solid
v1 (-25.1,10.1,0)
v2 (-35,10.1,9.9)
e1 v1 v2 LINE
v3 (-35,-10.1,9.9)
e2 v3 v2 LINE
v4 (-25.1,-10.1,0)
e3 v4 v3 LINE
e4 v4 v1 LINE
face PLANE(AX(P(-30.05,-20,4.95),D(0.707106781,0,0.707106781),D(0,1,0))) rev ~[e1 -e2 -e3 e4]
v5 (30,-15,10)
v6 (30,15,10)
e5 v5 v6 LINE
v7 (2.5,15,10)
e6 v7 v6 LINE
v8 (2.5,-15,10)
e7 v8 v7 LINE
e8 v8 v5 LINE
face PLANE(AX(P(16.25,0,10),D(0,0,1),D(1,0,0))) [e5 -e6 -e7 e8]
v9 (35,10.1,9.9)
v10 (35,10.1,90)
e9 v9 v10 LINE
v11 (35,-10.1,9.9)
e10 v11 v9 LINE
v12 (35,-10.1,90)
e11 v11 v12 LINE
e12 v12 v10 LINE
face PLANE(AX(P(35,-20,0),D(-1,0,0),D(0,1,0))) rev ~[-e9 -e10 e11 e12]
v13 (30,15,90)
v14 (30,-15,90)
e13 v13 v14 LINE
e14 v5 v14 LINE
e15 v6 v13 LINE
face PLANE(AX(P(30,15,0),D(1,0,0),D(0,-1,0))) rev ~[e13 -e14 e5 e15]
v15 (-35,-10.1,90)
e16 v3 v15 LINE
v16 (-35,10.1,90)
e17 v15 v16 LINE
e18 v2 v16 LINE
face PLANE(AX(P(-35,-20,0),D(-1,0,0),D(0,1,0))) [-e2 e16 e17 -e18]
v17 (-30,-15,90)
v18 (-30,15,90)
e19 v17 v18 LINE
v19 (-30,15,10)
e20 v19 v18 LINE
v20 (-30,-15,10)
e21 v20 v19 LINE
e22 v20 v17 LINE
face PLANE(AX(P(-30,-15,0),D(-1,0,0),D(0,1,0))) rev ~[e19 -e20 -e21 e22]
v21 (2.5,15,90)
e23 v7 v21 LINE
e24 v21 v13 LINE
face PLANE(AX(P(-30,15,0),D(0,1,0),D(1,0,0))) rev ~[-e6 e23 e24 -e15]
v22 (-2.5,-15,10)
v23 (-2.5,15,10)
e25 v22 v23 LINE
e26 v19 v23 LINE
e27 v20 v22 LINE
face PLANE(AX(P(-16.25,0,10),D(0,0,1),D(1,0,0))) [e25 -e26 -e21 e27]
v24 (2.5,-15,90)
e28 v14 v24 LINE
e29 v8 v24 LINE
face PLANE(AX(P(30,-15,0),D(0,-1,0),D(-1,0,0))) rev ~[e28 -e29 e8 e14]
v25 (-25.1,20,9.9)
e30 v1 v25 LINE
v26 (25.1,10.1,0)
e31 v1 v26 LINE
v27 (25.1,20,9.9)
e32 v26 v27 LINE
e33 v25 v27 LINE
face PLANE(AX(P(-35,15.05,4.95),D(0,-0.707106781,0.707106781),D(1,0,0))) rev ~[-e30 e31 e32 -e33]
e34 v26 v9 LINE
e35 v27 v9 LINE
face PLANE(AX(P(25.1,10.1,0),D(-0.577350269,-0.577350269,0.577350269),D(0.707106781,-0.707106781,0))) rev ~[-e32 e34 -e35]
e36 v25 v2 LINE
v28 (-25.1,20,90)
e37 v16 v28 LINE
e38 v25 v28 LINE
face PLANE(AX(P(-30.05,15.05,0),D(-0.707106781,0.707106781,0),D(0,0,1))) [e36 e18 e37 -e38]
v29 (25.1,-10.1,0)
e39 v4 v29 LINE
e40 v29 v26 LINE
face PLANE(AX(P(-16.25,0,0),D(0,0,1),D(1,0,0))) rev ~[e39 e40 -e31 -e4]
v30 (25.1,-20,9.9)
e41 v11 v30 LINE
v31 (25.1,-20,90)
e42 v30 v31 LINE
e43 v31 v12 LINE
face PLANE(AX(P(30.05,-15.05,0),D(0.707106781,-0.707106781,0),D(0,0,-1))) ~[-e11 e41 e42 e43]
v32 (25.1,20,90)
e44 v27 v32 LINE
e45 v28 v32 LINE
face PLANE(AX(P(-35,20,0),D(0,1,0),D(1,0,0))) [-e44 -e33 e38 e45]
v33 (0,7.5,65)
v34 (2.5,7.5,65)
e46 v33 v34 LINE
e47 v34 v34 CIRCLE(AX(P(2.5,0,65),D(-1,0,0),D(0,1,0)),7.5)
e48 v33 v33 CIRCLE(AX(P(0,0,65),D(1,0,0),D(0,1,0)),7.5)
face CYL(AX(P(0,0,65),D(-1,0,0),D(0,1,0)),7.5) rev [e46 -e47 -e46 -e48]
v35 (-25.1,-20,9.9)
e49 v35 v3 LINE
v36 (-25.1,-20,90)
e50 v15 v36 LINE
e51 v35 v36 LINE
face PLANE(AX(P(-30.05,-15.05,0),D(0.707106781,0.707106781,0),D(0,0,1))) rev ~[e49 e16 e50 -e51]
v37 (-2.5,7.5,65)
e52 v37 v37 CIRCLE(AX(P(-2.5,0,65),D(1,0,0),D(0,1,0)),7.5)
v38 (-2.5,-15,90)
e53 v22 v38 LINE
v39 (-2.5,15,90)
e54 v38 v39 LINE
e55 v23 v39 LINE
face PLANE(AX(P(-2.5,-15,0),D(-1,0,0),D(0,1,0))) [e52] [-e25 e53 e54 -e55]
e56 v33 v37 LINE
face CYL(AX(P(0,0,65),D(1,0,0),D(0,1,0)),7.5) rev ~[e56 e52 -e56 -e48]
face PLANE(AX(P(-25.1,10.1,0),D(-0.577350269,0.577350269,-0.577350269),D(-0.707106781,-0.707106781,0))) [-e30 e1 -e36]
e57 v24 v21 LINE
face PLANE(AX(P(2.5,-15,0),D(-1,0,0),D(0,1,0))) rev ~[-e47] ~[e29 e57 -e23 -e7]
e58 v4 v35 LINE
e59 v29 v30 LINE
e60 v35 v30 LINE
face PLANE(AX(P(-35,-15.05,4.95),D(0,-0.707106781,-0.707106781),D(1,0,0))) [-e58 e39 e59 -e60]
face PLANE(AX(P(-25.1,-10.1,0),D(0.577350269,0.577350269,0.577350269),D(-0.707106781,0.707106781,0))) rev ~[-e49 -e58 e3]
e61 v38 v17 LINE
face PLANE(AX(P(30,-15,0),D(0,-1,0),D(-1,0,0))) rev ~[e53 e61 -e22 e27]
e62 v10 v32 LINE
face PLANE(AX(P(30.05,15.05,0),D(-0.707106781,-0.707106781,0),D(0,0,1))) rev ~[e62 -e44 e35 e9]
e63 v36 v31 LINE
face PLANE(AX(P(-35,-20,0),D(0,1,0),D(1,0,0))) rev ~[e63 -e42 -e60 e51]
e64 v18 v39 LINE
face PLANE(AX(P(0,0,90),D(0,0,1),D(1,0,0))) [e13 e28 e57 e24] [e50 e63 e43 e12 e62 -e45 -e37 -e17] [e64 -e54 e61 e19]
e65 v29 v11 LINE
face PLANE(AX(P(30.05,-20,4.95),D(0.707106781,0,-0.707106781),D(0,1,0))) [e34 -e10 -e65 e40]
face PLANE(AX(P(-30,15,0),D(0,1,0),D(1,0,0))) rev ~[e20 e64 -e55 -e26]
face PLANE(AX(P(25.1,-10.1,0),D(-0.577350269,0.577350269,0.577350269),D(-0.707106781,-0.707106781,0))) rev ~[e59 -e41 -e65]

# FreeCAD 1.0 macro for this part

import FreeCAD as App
import Part
import Sketcher

V = App.Vector
Q = App.Units.Quantity


def edges_at(feature, points):
    """Names of the edges that pass closest to the given points."""
    edges = feature.Shape.Edges
    near = lambda p: min(range(len(edges)), key=lambda i: edges[i].distToShape(Part.Vertex(*p))[0])
    return sorted({f"Edge{near(p) + 1}" for p in points})


def add_polygon(sketch, points):
    """Adds a closed chain of lines whose ends are joined by coincident constraints."""
    first, n = sketch.GeometryCount, len(points)
    for a, b in zip(points, points[1:] + points[:1]):
        sketch.addGeometry(Part.LineSegment(App.Vector(*a, 0), App.Vector(*b, 0)), False)
    for i in range(n):
        sketch.addConstraint(Sketcher.Constraint("Coincident", first + i, 2, first + (i + 1) % n, 1))

doc = App.newDocument("Part")
params = doc.addObject("Spreadsheet::Sheet", "Params")
for row, (alias, value) in enumerate([
    ("sketch1_width", "5 mm"),
    ("sketch1_height", "30 mm"),
    ("pad1_length", "90 mm"),
    ("sketch2_width", "70 mm"),
    ("sketch2_width2", "60 mm"),
    ("sketch2_height", "40 mm"),
    ("sketch2_height2", "30 mm"),
    ("pad2_length", "90 mm"),
    ("sketch3_height", "30 mm"),
    ("sketch3_width", "27.5 mm"),
    ("pad3_length", "10 mm"),
    ("sketch4_diameter", "15 mm"),
    ("pocket1_length", "15 mm"),
    ("pocket1_length2", "25 mm"),
    ("chamfer_size", "9.9 mm"),
], start=1):
    params.set(f"A{row}", alias)
    params.set(f"B{row}", "=" + value)
    params.setAlias(f"B{row}", alias)

body = doc.addObject("PartDesign::Body", "Body")

sketch1 = body.newObject("Sketcher::SketchObject", "Sketch")
sketch1.AttachmentSupport = (doc.getObject("XY_Plane"), [""])
sketch1.MapMode = "FlatFace"
add_polygon(sketch1, [(-2.5, 15), (-2.5, -15), (2.5, -15), (2.5, 15)])
sketch1.addConstraint([
    Sketcher.Constraint("Vertical", 0),
    Sketcher.Constraint("Horizontal", 1),
    Sketcher.Constraint("Vertical", 2),
    Sketcher.Constraint("Horizontal", 3),
    Sketcher.Constraint("Symmetric", 0, 2, 2, 2, -1, 1),
    Sketcher.Constraint("DistanceX", 1, 1, 1, 2, Q("5 mm")),
    Sketcher.Constraint("DistanceY", 0, 2, 0, 1, Q("30 mm")),
])
sketch1.setExpression("Constraints[9]", "Params.sketch1_width")
sketch1.setExpression("Constraints[10]", "Params.sketch1_height")
pad1 = body.newObject("PartDesign::Pad", "Pad")
pad1.Profile = sketch1
pad1.setExpression("Length", "Params.pad1_length")

sketch2 = body.newObject("Sketcher::SketchObject", "Sketch001")
sketch2.AttachmentSupport = (doc.getObject("XY_Plane"), [""])
sketch2.MapMode = "FlatFace"
add_polygon(sketch2, [(-35, 20), (-35, -20), (35, -20), (35, 20)])
add_polygon(sketch2, [(30, -15), (-30, -15), (-30, 15), (30, 15)])
sketch2.addConstraint([
    Sketcher.Constraint("Vertical", 0),
    Sketcher.Constraint("Horizontal", 1),
    Sketcher.Constraint("Vertical", 2),
    Sketcher.Constraint("Horizontal", 3),
    Sketcher.Constraint("Horizontal", 4),
    Sketcher.Constraint("Vertical", 5),
    Sketcher.Constraint("Horizontal", 6),
    Sketcher.Constraint("Vertical", 7),
    Sketcher.Constraint("Symmetric", 0, 2, 2, 2, -1, 1),
    Sketcher.Constraint("Symmetric", 4, 2, 6, 2, -1, 1),
    Sketcher.Constraint("DistanceX", 1, 1, 1, 2, Q("70 mm")),
    Sketcher.Constraint("DistanceX", 4, 2, 4, 1, Q("60 mm")),
    Sketcher.Constraint("DistanceY", 0, 2, 0, 1, Q("40 mm")),
    Sketcher.Constraint("DistanceY", 5, 1, 5, 2, Q("30 mm")),
])
sketch2.setExpression("Constraints[18]", "Params.sketch2_width")
sketch2.setExpression("Constraints[19]", "Params.sketch2_width2")
sketch2.setExpression("Constraints[20]", "Params.sketch2_height")
sketch2.setExpression("Constraints[21]", "Params.sketch2_height2")
pad2 = body.newObject("PartDesign::Pad", "Pad001")
pad2.Profile = sketch2
pad2.setExpression("Length", "Params.pad2_length")

sketch3 = body.newObject("Sketcher::SketchObject", "Sketch002")
sketch3.AttachmentSupport = (doc.getObject("XY_Plane"), [""])
sketch3.MapMode = "FlatFace"
add_polygon(sketch3, [(-30, 15), (-30, -15), (-2.5, -15), (-2.5, 15)])
add_polygon(sketch3, [(2.5, 15), (2.5, -15), (30, -15), (30, 15)])
sketch3.addConstraint([
    Sketcher.Constraint("Vertical", 0),
    Sketcher.Constraint("Horizontal", 1),
    Sketcher.Constraint("Vertical", 2),
    Sketcher.Constraint("Horizontal", 3),
    Sketcher.Constraint("Vertical", 4),
    Sketcher.Constraint("Horizontal", 5),
    Sketcher.Constraint("Vertical", 6),
    Sketcher.Constraint("Horizontal", 7),
    Sketcher.Constraint("Symmetric", 2, 2, 4, 2, -1, 1),
    Sketcher.Constraint("Symmetric", 0, 2, 6, 2, -1, 1),
    Sketcher.Constraint("Horizontal", 1, 2, 4, 2),
    Sketcher.Constraint("DistanceY", 0, 2, 0, 1, Q("30 mm")),
    Sketcher.Constraint("DistanceX", 1, 1, 1, 2, Q("27.5 mm")),
    Sketcher.Constraint("DistanceX", 0, 2, -1, 1, Q("30 mm")),
])
sketch3.setExpression("Constraints[19]", "Params.sketch3_height")
sketch3.setExpression("Constraints[20]", "Params.sketch3_width")
pad3 = body.newObject("PartDesign::Pad", "Pad002")
pad3.Profile = sketch3
pad3.setExpression("Length", "Params.pad3_length")

sketch4 = body.newObject("Sketcher::SketchObject", "Sketch003")
sketch4.AttachmentSupport = (doc.getObject("YZ_Plane"), [""])
sketch4.MapMode = "FlatFace"
sketch4.addGeometry(Part.Circle(V(0, 65, 0), V(0, 0, 1), 7.5), False)
sketch4.addConstraint([
    Sketcher.Constraint("PointOnObject", 0, 3, -2),
    Sketcher.Constraint("Diameter", 0, Q("15 mm")),
    Sketcher.Constraint("DistanceY", -1, 1, 0, 3, Q("65 mm")),
])
sketch4.setExpression("Constraints[1]", "Params.sketch4_diameter")
pocket1 = body.newObject("PartDesign::Pocket", "Pocket")
pocket1.Profile = sketch4
pocket1.Type = "TwoLengths"
pocket1.setExpression("Length", "Params.pocket1_length")
pocket1.setExpression("Length2", "Params.pocket1_length2")
pocket1.Reversed = True
doc.recompute()

chamfer = body.newObject("PartDesign::Chamfer", "Chamfer")
chamfer.Base = (pocket1, edges_at(pocket1, [
    (35, -20, 45),
    (35, 20, 45),
    (-35, 20, 45),
    (-35, -20, 45),
    (0, 20, 0),
    (35, 0, 0),
    (0, -20, 0),
    (-35, 0, 0),
]))
chamfer.setExpression("Size", "Params.chamfer_size")

doc.recompute()
